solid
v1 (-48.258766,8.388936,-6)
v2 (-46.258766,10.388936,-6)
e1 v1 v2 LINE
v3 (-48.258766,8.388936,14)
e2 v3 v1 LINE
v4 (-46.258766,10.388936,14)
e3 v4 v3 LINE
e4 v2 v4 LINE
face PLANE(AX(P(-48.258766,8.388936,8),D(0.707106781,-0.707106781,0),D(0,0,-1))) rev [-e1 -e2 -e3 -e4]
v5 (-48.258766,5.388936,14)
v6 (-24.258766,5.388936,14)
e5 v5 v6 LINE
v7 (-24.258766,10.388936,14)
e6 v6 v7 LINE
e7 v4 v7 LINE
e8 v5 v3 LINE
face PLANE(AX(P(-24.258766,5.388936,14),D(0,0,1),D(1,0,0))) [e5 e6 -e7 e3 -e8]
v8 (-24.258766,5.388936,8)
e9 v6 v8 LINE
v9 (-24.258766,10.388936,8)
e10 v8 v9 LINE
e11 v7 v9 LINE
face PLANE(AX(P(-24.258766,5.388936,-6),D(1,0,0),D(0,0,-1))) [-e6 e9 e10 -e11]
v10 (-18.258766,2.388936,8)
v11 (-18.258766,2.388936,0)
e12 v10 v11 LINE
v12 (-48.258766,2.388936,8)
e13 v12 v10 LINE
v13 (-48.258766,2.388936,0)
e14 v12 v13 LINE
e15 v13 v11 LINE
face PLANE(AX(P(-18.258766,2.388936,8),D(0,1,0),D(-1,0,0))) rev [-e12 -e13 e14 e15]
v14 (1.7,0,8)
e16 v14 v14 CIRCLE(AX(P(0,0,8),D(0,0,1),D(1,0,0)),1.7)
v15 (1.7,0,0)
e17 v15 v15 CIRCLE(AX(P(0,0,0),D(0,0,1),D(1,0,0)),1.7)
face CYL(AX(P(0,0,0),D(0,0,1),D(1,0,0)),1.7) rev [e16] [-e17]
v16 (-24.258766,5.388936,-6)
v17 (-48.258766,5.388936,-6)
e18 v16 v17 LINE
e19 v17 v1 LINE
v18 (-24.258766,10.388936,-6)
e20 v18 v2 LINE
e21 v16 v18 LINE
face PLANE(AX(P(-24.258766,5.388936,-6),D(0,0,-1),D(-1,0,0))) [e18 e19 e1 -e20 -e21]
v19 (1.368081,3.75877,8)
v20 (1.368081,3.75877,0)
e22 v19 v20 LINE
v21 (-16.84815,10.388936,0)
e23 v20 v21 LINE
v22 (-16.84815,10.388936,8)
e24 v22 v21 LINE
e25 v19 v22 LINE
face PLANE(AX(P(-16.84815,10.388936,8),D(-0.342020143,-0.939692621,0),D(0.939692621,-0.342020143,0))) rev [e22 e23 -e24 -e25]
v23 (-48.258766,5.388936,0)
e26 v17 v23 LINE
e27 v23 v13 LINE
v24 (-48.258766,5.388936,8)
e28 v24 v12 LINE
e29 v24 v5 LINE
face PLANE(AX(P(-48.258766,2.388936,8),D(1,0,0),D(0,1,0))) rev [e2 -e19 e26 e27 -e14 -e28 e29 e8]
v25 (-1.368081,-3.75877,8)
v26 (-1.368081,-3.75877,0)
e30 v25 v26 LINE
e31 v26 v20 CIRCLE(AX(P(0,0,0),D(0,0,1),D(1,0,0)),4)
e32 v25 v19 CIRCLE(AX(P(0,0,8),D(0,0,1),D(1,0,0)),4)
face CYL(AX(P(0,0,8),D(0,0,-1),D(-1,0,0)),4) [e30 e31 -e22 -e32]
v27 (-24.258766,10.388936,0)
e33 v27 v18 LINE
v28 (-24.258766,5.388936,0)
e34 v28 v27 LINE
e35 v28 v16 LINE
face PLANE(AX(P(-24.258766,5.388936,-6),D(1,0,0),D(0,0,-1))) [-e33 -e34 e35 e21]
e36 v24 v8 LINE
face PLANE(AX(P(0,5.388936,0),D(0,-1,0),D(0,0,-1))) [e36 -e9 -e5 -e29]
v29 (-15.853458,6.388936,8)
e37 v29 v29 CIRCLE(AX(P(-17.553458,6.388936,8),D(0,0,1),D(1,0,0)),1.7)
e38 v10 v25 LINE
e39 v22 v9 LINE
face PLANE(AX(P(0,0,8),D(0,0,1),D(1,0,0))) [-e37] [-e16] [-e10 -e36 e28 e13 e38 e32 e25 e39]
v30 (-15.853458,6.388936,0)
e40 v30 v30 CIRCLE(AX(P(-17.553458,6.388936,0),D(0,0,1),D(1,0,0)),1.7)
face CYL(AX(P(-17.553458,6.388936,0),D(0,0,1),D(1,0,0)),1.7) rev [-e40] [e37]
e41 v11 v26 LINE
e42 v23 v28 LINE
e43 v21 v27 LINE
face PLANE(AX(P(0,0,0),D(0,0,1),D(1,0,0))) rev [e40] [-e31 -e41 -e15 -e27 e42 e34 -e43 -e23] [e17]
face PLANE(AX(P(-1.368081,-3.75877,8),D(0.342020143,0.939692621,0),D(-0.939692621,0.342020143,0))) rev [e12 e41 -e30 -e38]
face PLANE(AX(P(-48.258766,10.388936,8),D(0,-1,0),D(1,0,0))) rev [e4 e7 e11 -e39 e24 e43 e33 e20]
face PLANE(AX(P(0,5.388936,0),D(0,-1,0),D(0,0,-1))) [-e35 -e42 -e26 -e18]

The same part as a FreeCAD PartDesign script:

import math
import FreeCAD as App
import Part
import Sketcher

V = App.Vector
Q = App.Units.Quantity


def edges_at(feature, points):
    """Names of the edges that pass closest to the given points."""
    edges = feature.Shape.Edges
    near = lambda p: min(range(len(edges)), key=lambda i: edges[i].distToShape(Part.Vertex(*p))[0])
    return sorted({f"Edge{near(p) + 1}" for p in points})

doc = App.newDocument("Part")
body = doc.addObject("PartDesign::Body", "Body")

sketch1 = body.newObject("Sketcher::SketchObject", "Sketch")
sketch1.AttachmentSupport = (doc.getObject("XY_Plane"), [""])
sketch1.MapMode = "FlatFace"
sketch1.addGeometry([
    Part.LineSegment(V(-18.3, 2.4, 0), V(-1.4, -3.8, 0)),
    Part.ArcOfCircle(Part.Circle(V(0, 0, 0), V(0, 0, 1), 4), math.radians(-110), math.radians(70)),
    Part.LineSegment(V(1.4, 3.8, 0), V(-16.8, 10.4, 0)),
    Part.LineSegment(V(-16.8, 10.4, 0), V(-48.3, 10.4, 0)),
    Part.LineSegment(V(-48.3, 10.4, 0), V(-48.3, 2.4, 0)),
    Part.LineSegment(V(-48.3, 2.4, 0), V(-18.3, 2.4, 0)),
], False)
sketch1.addConstraint([
    Sketcher.Constraint("Tangent", 0, 2, 1, 1),
    Sketcher.Constraint("Tangent", 1, 2, 2, 1),
    Sketcher.Constraint("Coincident", 2, 2, 3, 1),
    Sketcher.Constraint("Coincident", 3, 2, 4, 1),
    Sketcher.Constraint("Coincident", 4, 2, 5, 1),
    Sketcher.Constraint("Coincident", 5, 2, 0, 1),
    Sketcher.Constraint("Horizontal", 3),
    Sketcher.Constraint("Vertical", 4),
    Sketcher.Constraint("Horizontal", 5),
    Sketcher.Constraint("Coincident", 1, 3, -1, 1),
    Sketcher.Constraint("Parallel", 0, 2),
    Sketcher.Constraint("Radius", 1, 4.0),
    Sketcher.Constraint("DistanceX", 5, 1, 5, 2, 30.0),
    Sketcher.Constraint("DistanceY", 4, 2, 4, 1, 8.0),
    Sketcher.Constraint("Angle", 0, Q("-20 deg")),
    Sketcher.Constraint("DistanceX", 2, 2, -1, 1, 16.84815),
])
pad1 = body.newObject("PartDesign::Pad", "Pad")
pad1.Profile = sketch1
pad1.Length = 8

sketch2 = body.newObject("Sketcher::SketchObject", "Sketch001")
sketch2.AttachmentSupport = (doc.getObject("XY_Plane"), [""])
sketch2.MapMode = "FlatFace"
sketch2.AttachmentOffset = App.Placement(V(0, 0, 8), App.Rotation())
sketch2.addGeometry(Part.Circle(V(0, 0, 0), V(0, 0, 1), 1.7), False)
sketch2.addConstraint([
    Sketcher.Constraint("Coincident", 0, 3, -1, 1),
    Sketcher.Constraint("Diameter", 0, 3.4),
])
pocket1 = body.newObject("PartDesign::Pocket", "Pocket")
pocket1.Profile = sketch2
pocket1.Length = 8

sketch3 = body.newObject("Sketcher::SketchObject", "Sketch002")
sketch3.AttachmentSupport = (doc.getObject("XY_Plane"), [""])
sketch3.MapMode = "FlatFace"
sketch3.AttachmentOffset = App.Placement(V(0, 0, 8), App.Rotation())
sketch3.addGeometry(Part.Circle(V(-17.6, 6.4, 0), V(0, 0, 1), 1.7), False)
sketch3.addConstraint([
    Sketcher.Constraint("Diameter", 0, 3.4),
    Sketcher.Constraint("DistanceX", 0, 3, -1, 1, 17.553458),
    Sketcher.Constraint("DistanceY", -1, 1, 0, 3, 6.388936),
])
pocket2 = body.newObject("PartDesign::Pocket", "Pocket001")
pocket2.Profile = sketch3
pocket2.Length = 8

sketch4 = body.newObject("Sketcher::SketchObject", "Sketch003")
sketch4.AttachmentSupport = (doc.getObject("XZ_Plane"), [""])
sketch4.MapMode = "FlatFace"
sketch4.AttachmentOffset = App.Placement(V(0, 0, -10.388936), App.Rotation())
sketch4.addGeometry([
    Part.LineSegment(V(-48, -6, 0), V(-48, 14, 0)),
    Part.LineSegment(V(-48, 14, 0), V(-24, 14, 0)),
    Part.LineSegment(V(-24, 14, 0), V(-24, -6, 0)),
    Part.LineSegment(V(-24, -6, 0), V(-48, -6, 0)),
], False)
sketch4.addConstraint([
    Sketcher.Constraint("Coincident", 0, 2, 1, 1),
    Sketcher.Constraint("Coincident", 1, 2, 2, 1),
    Sketcher.Constraint("Coincident", 2, 2, 3, 1),
    Sketcher.Constraint("Coincident", 3, 2, 0, 1),
    Sketcher.Constraint("Vertical", 0),
    Sketcher.Constraint("Horizontal", 1),
    Sketcher.Constraint("Vertical", 2),
    Sketcher.Constraint("Horizontal", 3),
    Sketcher.Constraint("DistanceX", 1, 1, 1, 2, 24.0),
    Sketcher.Constraint("DistanceY", 0, 1, 0, 2, 20.0),
    Sketcher.Constraint("DistanceY", -1, 1, 0, 2, 14.0),
    Sketcher.Constraint("DistanceX", 0, 2, -1, 1, 48.258766),
])
pad2 = body.newObject("PartDesign::Pad", "Pad001")
pad2.Profile = sketch4
pad2.Length = 5
doc.recompute()

chamfer = body.newObject("PartDesign::Chamfer", "Chamfer")
chamfer.Base = (pad2, edges_at(pad2, [(-48.259, 10.389, 4)]))
chamfer.Size = 2

doc.recompute()
